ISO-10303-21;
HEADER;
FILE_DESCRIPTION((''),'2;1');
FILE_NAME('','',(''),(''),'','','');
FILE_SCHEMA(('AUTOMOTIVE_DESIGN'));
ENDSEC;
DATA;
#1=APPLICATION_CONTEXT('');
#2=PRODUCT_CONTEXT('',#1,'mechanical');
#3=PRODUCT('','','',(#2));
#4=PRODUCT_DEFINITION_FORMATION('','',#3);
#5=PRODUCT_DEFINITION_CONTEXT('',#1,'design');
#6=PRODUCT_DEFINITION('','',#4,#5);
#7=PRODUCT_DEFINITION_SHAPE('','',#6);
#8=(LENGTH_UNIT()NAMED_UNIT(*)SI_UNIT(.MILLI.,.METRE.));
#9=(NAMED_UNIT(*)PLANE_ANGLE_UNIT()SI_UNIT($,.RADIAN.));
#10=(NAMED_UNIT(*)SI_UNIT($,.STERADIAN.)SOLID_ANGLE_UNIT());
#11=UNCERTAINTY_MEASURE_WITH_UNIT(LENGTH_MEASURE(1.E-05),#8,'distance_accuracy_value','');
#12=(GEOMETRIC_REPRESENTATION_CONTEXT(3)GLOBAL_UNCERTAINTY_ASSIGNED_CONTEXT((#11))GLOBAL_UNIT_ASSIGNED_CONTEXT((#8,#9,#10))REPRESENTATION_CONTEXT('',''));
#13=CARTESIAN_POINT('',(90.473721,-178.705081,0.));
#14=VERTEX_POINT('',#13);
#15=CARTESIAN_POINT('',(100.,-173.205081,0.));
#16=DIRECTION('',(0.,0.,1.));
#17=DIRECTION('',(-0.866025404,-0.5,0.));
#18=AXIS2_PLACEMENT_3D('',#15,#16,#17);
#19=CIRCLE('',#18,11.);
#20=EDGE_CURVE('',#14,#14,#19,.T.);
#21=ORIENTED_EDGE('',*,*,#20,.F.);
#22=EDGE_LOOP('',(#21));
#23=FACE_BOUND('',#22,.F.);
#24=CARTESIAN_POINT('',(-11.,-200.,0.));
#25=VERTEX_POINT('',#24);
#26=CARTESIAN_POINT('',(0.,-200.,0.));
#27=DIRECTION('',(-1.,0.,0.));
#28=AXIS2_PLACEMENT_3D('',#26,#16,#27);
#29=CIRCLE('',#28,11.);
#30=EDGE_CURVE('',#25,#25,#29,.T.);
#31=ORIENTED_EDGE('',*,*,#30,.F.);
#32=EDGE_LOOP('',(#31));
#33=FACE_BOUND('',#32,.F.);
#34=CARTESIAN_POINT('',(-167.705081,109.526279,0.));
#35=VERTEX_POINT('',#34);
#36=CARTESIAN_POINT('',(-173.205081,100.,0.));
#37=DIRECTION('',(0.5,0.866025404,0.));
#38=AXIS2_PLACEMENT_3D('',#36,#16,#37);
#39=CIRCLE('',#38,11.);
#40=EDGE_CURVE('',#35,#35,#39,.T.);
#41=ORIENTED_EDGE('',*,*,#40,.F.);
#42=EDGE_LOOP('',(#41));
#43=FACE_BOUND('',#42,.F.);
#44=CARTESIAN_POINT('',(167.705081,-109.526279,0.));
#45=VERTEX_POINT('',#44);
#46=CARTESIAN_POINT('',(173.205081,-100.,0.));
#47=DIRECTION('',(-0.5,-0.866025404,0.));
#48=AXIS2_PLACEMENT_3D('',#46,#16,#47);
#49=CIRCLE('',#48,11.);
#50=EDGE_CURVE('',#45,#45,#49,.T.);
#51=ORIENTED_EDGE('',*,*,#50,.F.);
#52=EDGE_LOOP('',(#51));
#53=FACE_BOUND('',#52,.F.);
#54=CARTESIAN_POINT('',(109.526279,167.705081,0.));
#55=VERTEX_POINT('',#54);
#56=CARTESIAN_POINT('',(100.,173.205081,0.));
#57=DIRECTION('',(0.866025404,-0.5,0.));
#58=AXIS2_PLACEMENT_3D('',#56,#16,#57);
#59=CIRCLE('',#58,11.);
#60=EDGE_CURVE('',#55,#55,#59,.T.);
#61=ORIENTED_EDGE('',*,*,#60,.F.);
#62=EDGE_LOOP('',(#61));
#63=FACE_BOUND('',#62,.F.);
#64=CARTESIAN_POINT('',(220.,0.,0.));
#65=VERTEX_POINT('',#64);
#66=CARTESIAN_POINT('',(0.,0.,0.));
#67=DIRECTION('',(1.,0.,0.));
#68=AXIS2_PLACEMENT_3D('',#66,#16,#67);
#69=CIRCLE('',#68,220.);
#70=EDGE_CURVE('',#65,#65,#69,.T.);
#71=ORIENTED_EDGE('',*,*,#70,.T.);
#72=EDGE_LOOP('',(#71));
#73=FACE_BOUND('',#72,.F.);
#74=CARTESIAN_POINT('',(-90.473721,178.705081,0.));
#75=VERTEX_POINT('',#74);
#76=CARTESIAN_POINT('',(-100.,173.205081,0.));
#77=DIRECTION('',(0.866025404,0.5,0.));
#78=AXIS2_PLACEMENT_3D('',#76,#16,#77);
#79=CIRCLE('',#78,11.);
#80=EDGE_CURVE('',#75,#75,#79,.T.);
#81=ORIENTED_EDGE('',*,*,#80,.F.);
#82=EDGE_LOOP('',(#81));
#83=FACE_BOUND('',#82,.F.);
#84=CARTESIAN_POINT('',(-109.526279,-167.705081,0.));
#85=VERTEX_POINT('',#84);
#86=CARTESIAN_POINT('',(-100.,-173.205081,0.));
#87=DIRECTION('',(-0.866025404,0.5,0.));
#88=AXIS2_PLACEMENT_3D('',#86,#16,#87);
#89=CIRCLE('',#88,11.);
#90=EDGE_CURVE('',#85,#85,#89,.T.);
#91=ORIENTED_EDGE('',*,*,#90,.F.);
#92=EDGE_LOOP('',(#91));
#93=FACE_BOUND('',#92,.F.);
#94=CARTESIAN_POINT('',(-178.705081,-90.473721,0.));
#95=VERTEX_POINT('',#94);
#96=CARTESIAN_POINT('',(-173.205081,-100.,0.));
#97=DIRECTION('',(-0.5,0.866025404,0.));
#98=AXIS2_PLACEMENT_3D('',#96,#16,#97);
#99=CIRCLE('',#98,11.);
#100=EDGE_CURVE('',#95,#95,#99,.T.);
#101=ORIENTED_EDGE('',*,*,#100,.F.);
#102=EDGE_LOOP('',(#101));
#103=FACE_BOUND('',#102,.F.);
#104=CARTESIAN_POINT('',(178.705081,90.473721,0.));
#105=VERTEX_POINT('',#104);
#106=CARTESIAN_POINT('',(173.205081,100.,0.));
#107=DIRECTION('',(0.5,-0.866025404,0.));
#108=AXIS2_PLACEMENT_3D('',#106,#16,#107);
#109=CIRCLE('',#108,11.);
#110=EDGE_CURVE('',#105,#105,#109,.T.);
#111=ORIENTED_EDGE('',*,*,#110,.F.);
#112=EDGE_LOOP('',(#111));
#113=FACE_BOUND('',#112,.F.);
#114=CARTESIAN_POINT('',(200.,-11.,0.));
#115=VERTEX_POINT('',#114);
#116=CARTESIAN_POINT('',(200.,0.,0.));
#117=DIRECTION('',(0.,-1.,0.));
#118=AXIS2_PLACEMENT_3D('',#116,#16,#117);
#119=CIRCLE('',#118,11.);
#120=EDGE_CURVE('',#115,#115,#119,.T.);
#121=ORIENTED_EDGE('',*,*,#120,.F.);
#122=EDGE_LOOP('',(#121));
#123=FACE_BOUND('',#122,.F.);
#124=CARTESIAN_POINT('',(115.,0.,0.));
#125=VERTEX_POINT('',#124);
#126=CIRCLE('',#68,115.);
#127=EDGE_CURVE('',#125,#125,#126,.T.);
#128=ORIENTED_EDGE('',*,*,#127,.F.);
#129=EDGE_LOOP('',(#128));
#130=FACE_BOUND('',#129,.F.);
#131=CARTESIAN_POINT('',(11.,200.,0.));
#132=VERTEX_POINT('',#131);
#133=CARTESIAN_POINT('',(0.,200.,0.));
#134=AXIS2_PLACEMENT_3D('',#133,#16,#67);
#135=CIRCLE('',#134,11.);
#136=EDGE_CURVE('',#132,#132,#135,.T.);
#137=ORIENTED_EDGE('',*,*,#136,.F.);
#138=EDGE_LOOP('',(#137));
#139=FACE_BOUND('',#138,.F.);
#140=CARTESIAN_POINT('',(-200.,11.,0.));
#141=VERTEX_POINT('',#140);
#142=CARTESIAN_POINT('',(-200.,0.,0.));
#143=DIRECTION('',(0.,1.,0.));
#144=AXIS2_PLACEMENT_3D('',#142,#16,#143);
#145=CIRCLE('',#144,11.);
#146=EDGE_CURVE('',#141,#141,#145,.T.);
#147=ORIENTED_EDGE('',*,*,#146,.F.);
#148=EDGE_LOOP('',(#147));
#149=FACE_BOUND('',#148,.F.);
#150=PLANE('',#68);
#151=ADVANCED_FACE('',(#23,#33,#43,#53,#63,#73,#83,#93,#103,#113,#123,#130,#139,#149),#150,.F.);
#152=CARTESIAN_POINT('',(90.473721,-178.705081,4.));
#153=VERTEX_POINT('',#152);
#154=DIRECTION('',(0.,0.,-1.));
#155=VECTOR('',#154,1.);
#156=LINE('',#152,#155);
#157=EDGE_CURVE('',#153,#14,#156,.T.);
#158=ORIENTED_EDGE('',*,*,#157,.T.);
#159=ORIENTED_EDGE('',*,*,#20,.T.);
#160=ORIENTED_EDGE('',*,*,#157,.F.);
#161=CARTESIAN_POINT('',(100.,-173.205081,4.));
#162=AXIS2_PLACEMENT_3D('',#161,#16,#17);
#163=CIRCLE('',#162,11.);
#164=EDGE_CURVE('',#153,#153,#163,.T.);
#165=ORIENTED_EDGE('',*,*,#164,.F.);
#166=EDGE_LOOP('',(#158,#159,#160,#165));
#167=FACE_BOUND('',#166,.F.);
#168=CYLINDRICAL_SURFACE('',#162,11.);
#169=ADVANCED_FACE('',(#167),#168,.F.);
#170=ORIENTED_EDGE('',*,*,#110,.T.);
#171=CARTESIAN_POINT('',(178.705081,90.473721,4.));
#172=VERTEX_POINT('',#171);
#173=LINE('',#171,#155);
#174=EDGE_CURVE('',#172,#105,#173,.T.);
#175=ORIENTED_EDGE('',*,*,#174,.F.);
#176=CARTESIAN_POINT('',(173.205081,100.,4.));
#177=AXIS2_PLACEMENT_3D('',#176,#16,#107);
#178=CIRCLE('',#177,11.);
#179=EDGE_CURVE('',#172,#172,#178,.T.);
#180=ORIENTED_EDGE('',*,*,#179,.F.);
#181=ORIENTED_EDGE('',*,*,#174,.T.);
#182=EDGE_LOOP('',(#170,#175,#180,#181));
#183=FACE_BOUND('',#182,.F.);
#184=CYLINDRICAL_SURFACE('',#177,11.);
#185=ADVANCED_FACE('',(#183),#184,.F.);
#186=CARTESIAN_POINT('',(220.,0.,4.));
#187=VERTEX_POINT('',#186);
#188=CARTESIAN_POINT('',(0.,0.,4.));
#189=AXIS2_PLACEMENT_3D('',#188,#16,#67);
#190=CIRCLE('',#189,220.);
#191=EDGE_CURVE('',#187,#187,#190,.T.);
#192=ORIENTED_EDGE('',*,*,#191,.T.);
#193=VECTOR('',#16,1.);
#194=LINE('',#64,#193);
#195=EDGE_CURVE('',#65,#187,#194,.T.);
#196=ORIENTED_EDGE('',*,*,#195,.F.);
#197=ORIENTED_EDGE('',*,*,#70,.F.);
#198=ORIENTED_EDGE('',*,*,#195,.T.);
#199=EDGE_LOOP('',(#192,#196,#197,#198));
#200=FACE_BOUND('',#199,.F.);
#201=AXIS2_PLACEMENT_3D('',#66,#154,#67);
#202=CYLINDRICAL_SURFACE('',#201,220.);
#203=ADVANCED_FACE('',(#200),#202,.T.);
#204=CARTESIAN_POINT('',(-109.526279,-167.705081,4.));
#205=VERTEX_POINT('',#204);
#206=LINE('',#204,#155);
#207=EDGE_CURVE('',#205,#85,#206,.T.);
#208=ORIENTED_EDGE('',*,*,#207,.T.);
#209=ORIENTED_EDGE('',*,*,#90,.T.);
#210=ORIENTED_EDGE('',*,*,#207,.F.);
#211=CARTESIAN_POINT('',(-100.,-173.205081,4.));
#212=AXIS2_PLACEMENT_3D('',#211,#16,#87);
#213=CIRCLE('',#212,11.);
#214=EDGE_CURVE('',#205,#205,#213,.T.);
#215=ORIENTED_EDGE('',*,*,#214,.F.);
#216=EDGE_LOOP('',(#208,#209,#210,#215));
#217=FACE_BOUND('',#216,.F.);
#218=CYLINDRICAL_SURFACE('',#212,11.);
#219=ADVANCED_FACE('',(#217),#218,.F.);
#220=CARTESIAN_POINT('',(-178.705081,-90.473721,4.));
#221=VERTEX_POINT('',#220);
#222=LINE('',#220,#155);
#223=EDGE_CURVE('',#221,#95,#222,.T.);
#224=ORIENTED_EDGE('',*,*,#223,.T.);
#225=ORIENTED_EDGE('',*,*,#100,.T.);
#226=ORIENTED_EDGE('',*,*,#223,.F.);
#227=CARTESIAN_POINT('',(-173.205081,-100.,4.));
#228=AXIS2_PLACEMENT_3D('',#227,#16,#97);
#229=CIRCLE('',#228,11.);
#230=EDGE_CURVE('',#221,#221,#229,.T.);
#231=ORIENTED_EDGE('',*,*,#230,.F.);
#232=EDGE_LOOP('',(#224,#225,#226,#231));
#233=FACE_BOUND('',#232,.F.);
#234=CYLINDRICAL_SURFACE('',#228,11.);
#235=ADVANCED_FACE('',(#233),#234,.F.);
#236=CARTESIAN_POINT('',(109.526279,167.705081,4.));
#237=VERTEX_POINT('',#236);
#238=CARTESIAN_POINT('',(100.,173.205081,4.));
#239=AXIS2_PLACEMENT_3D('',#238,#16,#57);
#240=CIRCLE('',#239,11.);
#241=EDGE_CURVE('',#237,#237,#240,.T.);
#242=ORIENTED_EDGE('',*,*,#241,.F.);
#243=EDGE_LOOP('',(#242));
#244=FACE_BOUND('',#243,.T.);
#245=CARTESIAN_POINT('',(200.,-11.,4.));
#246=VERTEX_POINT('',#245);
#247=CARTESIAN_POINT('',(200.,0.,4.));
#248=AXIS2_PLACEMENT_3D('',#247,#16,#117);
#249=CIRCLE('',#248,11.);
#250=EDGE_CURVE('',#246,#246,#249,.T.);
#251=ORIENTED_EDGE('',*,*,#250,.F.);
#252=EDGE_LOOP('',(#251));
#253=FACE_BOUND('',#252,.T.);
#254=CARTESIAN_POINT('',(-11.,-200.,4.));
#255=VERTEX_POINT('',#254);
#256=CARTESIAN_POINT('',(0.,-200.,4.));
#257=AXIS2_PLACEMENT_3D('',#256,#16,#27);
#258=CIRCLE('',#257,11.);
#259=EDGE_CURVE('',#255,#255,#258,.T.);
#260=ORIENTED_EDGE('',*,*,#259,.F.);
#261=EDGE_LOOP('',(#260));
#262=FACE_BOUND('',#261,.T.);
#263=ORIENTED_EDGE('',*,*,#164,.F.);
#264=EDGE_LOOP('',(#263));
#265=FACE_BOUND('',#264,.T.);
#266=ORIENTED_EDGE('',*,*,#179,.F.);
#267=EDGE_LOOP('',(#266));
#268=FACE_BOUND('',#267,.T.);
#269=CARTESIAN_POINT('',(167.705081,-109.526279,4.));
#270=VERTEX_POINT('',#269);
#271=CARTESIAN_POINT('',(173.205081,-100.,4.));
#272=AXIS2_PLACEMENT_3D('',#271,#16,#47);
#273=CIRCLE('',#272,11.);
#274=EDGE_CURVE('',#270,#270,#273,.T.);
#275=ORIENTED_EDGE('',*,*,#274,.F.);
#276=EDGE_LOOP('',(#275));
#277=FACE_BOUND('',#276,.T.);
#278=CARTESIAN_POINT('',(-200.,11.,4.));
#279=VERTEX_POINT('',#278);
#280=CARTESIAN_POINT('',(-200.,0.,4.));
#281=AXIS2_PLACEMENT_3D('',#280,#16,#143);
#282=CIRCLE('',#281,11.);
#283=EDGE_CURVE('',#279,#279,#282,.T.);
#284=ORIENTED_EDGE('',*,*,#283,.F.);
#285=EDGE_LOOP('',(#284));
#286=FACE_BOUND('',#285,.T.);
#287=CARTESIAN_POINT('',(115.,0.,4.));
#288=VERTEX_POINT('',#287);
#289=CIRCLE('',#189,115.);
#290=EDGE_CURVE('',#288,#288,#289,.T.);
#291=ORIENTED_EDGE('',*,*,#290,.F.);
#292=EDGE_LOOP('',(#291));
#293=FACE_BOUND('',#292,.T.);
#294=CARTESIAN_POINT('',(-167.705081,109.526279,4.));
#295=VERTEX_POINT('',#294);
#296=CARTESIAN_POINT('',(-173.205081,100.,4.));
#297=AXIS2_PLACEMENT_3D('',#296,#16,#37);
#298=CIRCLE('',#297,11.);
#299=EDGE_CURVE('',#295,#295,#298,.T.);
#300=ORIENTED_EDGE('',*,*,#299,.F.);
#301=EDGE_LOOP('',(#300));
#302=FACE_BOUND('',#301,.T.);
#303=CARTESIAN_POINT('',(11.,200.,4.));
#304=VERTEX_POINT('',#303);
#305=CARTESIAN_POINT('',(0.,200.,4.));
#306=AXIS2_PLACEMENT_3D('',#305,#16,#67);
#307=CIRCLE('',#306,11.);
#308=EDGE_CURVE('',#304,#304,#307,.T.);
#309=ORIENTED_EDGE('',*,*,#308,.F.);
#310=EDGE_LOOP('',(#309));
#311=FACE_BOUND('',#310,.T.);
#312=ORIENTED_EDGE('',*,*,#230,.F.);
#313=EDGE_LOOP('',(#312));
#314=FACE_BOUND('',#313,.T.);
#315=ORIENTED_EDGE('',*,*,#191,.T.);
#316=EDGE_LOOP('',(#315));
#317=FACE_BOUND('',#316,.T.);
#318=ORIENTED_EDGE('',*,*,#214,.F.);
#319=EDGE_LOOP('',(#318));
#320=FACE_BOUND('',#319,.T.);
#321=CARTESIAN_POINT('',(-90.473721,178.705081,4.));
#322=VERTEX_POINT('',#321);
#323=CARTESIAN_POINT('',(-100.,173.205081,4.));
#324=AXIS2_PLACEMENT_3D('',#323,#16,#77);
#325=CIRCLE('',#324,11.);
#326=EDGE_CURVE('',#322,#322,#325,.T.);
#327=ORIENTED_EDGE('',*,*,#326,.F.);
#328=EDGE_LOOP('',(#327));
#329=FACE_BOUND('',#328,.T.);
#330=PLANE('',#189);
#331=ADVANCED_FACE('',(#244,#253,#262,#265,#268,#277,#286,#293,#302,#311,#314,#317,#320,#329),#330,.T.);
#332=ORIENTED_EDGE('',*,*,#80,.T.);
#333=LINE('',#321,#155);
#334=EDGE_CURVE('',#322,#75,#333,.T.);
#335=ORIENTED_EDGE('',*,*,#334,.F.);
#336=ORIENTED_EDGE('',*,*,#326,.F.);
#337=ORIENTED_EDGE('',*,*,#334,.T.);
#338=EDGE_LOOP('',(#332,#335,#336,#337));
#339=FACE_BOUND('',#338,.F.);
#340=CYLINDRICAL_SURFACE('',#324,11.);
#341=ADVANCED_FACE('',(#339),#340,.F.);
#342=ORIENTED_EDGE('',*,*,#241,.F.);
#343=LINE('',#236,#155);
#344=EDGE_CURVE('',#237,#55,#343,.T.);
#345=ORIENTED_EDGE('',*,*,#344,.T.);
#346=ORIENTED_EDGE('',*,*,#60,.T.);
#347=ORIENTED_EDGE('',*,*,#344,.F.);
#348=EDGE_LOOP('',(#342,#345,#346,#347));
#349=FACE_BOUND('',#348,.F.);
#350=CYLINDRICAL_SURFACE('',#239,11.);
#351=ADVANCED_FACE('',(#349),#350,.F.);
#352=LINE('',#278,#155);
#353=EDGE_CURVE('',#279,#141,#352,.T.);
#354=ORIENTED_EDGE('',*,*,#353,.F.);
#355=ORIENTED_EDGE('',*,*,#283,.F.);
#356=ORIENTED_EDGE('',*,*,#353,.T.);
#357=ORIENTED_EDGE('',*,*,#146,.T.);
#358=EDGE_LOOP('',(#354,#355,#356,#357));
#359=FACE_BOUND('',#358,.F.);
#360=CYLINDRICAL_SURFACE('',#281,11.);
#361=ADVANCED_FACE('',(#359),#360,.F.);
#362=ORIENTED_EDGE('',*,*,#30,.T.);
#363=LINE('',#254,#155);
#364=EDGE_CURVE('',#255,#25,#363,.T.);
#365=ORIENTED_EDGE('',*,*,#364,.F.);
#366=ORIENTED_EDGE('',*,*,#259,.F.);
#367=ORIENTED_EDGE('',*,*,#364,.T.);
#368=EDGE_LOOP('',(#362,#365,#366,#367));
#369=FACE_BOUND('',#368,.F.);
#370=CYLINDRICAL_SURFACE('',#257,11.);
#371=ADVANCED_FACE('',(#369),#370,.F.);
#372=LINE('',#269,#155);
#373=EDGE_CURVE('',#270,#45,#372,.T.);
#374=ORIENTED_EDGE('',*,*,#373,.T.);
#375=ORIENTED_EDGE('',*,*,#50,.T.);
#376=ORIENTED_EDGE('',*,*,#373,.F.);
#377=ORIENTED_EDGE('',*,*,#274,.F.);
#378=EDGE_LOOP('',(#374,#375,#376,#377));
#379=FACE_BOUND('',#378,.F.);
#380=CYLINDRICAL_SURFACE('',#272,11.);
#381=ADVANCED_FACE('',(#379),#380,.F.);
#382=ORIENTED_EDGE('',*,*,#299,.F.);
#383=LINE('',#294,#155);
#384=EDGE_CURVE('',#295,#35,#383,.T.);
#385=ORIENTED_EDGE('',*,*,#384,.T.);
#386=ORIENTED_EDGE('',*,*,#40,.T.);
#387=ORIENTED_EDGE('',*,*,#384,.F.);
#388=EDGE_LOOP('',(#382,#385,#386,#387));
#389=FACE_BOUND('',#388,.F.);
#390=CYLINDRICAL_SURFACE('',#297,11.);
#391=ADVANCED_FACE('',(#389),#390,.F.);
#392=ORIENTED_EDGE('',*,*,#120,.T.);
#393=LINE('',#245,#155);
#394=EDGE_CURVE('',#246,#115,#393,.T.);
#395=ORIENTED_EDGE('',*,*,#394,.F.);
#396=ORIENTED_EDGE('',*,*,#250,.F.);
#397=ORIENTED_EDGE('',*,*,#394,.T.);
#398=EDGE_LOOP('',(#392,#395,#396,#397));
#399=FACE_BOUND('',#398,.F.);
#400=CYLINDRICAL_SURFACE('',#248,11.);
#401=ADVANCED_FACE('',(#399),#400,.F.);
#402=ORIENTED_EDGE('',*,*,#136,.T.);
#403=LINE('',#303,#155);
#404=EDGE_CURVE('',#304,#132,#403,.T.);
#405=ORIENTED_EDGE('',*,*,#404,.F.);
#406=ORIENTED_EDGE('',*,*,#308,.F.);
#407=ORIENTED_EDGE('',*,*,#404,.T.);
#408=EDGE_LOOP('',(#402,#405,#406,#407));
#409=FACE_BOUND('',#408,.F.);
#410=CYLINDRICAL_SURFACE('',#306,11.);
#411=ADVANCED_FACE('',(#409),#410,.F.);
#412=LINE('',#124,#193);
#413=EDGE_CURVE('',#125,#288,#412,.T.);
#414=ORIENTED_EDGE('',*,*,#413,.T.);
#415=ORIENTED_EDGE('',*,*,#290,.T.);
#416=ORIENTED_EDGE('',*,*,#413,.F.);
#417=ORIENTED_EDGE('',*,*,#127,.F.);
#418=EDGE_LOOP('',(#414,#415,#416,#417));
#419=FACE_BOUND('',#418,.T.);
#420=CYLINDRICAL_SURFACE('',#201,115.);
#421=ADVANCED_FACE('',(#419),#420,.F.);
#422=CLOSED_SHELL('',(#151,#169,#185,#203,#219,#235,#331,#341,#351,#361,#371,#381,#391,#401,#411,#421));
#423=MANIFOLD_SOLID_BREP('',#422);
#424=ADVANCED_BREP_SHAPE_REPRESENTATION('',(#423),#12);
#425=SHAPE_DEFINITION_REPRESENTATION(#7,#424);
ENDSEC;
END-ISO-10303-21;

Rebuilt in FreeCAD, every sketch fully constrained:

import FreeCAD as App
import Part
import Sketcher
from FreeCAD import Vector

doc = App.newDocument("Part")
body = doc.addObject("PartDesign::Body", "Body")

# Sketch on XY plane
sketch1 = doc.addObject("Sketcher::SketchObject", "Sketch")
body.addObject(sketch1)
sketch1.AttachmentSupport = (doc.XY_Plane, [""])
sketch1.MapMode = "FlatFace"
sketch1.addGeometry(Part.Circle(Vector(0, 0, 0), Vector(0, 0, 1), 220), False)
sketch1.addGeometry(Part.Circle(Vector(0, 0, 0), Vector(0, 0, 1), 115), False)
sketch1.addConstraint(Sketcher.Constraint("Coincident", 0, 3, -1, 1))
sketch1.addConstraint(Sketcher.Constraint("Coincident", 1, 3, -1, 1))
sketch1.addConstraint(Sketcher.Constraint("Diameter", 0, 440.0))
sketch1.addConstraint(Sketcher.Constraint("Diameter", 1, 230.0))
pad1 = doc.addObject("PartDesign::Pad", "Pad")
body.addObject(pad1)
pad1.Profile = sketch1
pad1.Length = 4

# Sketch on XY plane
sketch2 = doc.addObject("Sketcher::SketchObject", "Sketch001")
body.addObject(sketch2)
sketch2.AttachmentSupport = (doc.XY_Plane, [""])
sketch2.MapMode = "FlatFace"
sketch2.AttachmentOffset = App.Placement(Vector(0, 0, 4), App.Rotation())
sketch2.addGeometry(Part.Circle(Vector(0, 200, 0), Vector(0, 0, 1), 11), False)
sketch2.addConstraint(Sketcher.Constraint("PointOnObject", 0, 3, -2))
sketch2.addConstraint(Sketcher.Constraint("Diameter", 0, 22.0))
sketch2.addConstraint(Sketcher.Constraint("DistanceY", -1, 1, 0, 3, 200.0))
pocket1 = doc.addObject("PartDesign::Pocket", "Pocket")
body.addObject(pocket1)
pocket1.Profile = sketch2
pocket1.Length = 4
doc.recompute()

polarpattern = doc.addObject("PartDesign::PolarPattern", "PolarPattern")
body.addObject(polarpattern)
polarpattern.Originals = [pocket1]
polarpattern.Axis = (doc.Z_Axis, [""])
polarpattern.Angle = 360
polarpattern.Occurrences = 12
body.Tip = polarpattern

doc.recompute()
